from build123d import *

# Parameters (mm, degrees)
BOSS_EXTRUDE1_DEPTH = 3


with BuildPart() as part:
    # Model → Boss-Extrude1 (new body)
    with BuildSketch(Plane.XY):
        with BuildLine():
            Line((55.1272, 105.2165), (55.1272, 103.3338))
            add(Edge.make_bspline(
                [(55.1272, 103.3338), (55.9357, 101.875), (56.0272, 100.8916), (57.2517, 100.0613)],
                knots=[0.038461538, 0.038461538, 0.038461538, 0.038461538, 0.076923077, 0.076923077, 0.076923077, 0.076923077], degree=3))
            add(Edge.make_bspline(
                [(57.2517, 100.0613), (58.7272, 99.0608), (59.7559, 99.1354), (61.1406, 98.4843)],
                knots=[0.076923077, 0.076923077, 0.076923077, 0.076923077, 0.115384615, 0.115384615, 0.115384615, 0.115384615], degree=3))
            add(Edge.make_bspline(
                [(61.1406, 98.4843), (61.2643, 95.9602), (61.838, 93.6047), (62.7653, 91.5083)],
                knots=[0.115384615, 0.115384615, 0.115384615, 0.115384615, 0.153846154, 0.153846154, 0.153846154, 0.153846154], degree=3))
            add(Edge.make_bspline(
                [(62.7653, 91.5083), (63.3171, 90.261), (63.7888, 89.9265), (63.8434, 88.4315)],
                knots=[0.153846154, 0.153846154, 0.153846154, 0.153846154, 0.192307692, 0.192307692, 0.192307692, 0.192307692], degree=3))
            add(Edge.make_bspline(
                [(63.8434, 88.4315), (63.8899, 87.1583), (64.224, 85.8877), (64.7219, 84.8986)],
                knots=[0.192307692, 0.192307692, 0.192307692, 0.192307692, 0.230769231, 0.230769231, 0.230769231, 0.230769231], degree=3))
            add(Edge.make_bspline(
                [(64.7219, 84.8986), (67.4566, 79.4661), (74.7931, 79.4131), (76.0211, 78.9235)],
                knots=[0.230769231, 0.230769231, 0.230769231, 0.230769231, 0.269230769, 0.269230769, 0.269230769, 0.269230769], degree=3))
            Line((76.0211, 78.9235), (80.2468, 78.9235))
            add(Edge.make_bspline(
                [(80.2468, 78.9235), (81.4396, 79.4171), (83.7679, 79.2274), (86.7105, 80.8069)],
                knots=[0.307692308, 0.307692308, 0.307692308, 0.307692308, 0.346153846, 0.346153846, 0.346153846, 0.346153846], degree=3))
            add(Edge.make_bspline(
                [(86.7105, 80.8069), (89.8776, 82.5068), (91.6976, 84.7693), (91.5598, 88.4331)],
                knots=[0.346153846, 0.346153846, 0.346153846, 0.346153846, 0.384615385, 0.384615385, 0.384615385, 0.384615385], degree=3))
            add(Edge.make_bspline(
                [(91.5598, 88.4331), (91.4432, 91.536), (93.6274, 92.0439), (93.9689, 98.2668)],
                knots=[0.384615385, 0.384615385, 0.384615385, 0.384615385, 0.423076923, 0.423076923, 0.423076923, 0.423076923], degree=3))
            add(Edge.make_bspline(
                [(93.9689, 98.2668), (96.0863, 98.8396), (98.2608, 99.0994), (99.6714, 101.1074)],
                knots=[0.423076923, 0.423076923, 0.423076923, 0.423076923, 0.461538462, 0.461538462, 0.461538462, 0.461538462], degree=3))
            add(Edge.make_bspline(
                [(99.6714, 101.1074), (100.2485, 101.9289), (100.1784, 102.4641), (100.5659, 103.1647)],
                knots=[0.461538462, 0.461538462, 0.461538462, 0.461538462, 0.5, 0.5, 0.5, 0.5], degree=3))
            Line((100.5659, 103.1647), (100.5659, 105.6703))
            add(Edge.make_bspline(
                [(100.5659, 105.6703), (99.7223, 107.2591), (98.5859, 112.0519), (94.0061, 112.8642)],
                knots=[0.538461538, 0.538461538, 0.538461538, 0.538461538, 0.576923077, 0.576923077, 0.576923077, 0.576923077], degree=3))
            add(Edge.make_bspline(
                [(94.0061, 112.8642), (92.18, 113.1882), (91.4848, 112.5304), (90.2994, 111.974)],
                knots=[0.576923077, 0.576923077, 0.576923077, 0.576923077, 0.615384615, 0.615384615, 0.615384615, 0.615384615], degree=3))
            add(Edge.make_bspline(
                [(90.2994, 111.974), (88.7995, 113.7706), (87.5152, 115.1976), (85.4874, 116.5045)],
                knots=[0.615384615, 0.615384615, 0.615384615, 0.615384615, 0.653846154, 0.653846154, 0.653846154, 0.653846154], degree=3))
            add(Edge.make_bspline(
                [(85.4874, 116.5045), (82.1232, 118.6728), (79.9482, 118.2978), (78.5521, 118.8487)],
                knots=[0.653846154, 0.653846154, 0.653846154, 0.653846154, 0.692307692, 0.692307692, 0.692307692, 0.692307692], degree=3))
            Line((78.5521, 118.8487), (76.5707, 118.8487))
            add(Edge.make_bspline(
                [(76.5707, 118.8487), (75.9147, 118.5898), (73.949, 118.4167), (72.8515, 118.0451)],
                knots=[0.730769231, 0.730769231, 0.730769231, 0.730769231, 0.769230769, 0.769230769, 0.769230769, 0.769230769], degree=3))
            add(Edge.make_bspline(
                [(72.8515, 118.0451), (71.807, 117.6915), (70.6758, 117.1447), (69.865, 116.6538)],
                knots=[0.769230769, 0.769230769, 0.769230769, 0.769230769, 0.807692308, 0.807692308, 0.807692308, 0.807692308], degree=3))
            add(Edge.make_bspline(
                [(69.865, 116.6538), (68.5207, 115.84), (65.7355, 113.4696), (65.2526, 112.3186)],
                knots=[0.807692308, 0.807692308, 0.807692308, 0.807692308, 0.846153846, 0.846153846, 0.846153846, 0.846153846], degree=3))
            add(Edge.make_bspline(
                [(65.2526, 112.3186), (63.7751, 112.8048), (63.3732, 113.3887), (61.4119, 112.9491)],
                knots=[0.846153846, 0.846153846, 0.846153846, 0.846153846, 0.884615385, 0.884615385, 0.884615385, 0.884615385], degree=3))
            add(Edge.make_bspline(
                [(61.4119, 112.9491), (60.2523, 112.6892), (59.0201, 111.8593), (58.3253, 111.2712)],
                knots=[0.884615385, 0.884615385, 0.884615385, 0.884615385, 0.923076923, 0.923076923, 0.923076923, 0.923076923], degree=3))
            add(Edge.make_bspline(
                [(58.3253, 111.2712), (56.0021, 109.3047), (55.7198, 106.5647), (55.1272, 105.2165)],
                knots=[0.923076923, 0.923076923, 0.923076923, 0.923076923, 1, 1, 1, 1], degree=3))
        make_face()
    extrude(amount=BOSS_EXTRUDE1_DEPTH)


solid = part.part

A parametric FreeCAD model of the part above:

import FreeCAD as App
import Part
import Sketcher

V = App.Vector

doc = App.newDocument("Part")
body = doc.addObject("PartDesign::Body", "Body")

# Sketch on XY plane
sketch1 = body.newObject("Sketcher::SketchObject", "Sketch")
sketch1.AttachmentSupport = (doc.getObject("XY_Plane"), [""])
sketch1.MapMode = "FlatFace"
sketch1.addGeometry([
    Part.LineSegment(V(55.1272, 105.2165, 0), V(55.1272, 103.3338, 0)),  # 0
    Part.BSplineCurve([V(55.1272, 103.3338, 0), V(55.9357, 101.875, 0), V(56.0272, 100.8916, 0), V(57.2517, 100.0613, 0)], [4, 4], [0.038461538, 0.076923077], False, 3, [1, 1, 1, 1], False),  # 1
    Part.BSplineCurve([V(57.2517, 100.0613, 0), V(58.7272, 99.0608, 0), V(59.7559, 99.1354, 0), V(61.1406, 98.4843, 0)], [4, 4], [0.076923077, 0.115384615], False, 3, [1, 1, 1, 1], False),  # 2
    Part.BSplineCurve([V(61.1406, 98.4843, 0), V(61.2643, 95.9602, 0), V(61.838, 93.6047, 0), V(62.7653, 91.5083, 0)], [4, 4], [0.115384615, 0.153846154], False, 3, [1, 1, 1, 1], False),  # 3
    Part.BSplineCurve([V(62.7653, 91.5083, 0), V(63.3171, 90.261, 0), V(63.7888, 89.9265, 0), V(63.8434, 88.4315, 0)], [4, 4], [0.153846154, 0.192307692], False, 3, [1, 1, 1, 1], False),  # 4
    Part.BSplineCurve([V(63.8434, 88.4315, 0), V(63.8899, 87.1583, 0), V(64.224, 85.8877, 0), V(64.7219, 84.8986, 0)], [4, 4], [0.192307692, 0.230769231], False, 3, [1, 1, 1, 1], False),  # 5
    Part.BSplineCurve([V(64.7219, 84.8986, 0), V(67.4566, 79.4661, 0), V(74.7931, 79.4131, 0), V(76.0211, 78.9235, 0)], [4, 4], [0.230769231, 0.269230769], False, 3, [1, 1, 1, 1], False),  # 6
    Part.LineSegment(V(76.0211, 78.9235, 0), V(80.2468, 78.9235, 0)),  # 7
    Part.BSplineCurve([V(80.2468, 78.9235, 0), V(81.4396, 79.4171, 0), V(83.7679, 79.2274, 0), V(86.7105, 80.8069, 0)], [4, 4], [0.307692308, 0.346153846], False, 3, [1, 1, 1, 1], False),  # 8
    Part.BSplineCurve([V(86.7105, 80.8069, 0), V(89.8776, 82.5068, 0), V(91.6976, 84.7693, 0), V(91.5598, 88.4331, 0)], [4, 4], [0.346153846, 0.384615385], False, 3, [1, 1, 1, 1], False),  # 9
    Part.BSplineCurve([V(91.5598, 88.4331, 0), V(91.4432, 91.536, 0), V(93.6274, 92.0439, 0), V(93.9689, 98.2668, 0)], [4, 4], [0.384615385, 0.423076923], False, 3, [1, 1, 1, 1], False),  # 10
    Part.BSplineCurve([V(93.9689, 98.2668, 0), V(96.0863, 98.8396, 0), V(98.2608, 99.0994, 0), V(99.6714, 101.1074, 0)], [4, 4], [0.423076923, 0.461538462], False, 3, [1, 1, 1, 1], False),  # 11
    Part.BSplineCurve([V(99.6714, 101.1074, 0), V(100.2485, 101.9289, 0), V(100.1784, 102.4641, 0), V(100.5659, 103.1647, 0)], [4, 4], [0.461538462, 0.5], False, 3, [1, 1, 1, 1], False),  # 12
    Part.LineSegment(V(100.5659, 103.1647, 0), V(100.5659, 105.6703, 0)),  # 13
    Part.BSplineCurve([V(100.5659, 105.6703, 0), V(99.7223, 107.2591, 0), V(98.5859, 112.0519, 0), V(94.0061, 112.8642, 0)], [4, 4], [0.538461538, 0.576923077], False, 3, [1, 1, 1, 1], False),  # 14
    Part.BSplineCurve([V(94.0061, 112.8642, 0), V(92.18, 113.1882, 0), V(91.4848, 112.5304, 0), V(90.2994, 111.974, 0)], [4, 4], [0.576923077, 0.615384615], False, 3, [1, 1, 1, 1], False),  # 15
    Part.BSplineCurve([V(90.2994, 111.974, 0), V(88.7995, 113.7706, 0), V(87.5152, 115.1976, 0), V(85.4874, 116.5045, 0)], [4, 4], [0.615384615, 0.653846154], False, 3, [1, 1, 1, 1], False),  # 16
    Part.BSplineCurve([V(85.4874, 116.5045, 0), V(82.1232, 118.6728, 0), V(79.9482, 118.2978, 0), V(78.5521, 118.8487, 0)], [4, 4], [0.653846154, 0.692307692], False, 3, [1, 1, 1, 1], False),  # 17
    Part.LineSegment(V(78.5521, 118.8487, 0), V(76.5707, 118.8487, 0)),  # 18
    Part.BSplineCurve([V(76.5707, 118.8487, 0), V(75.9147, 118.5898, 0), V(73.949, 118.4167, 0), V(72.8515, 118.0451, 0)], [4, 4], [0.730769231, 0.769230769], False, 3, [1, 1, 1, 1], False),  # 19
    Part.BSplineCurve([V(72.8515, 118.0451, 0), V(71.807, 117.6915, 0), V(70.6758, 117.1447, 0), V(69.865, 116.6538, 0)], [4, 4], [0.769230769, 0.807692308], False, 3, [1, 1, 1, 1], False),  # 20
    Part.BSplineCurve([V(69.865, 116.6538, 0), V(68.5207, 115.84, 0), V(65.7355, 113.4696, 0), V(65.2526, 112.3186, 0)], [4, 4], [0.807692308, 0.846153846], False, 3, [1, 1, 1, 1], False),  # 21
    Part.BSplineCurve([V(65.2526, 112.3186, 0), V(63.7751, 112.8048, 0), V(63.3732, 113.3887, 0), V(61.4119, 112.9491, 0)], [4, 4], [0.846153846, 0.884615385], False, 3, [1, 1, 1, 1], False),  # 22
    Part.BSplineCurve([V(61.4119, 112.9491, 0), V(60.2523, 112.6892, 0), V(59.0201, 111.8593, 0), V(58.3253, 111.2712, 0)], [4, 4], [0.884615385, 0.923076923], False, 3, [1, 1, 1, 1], False),  # 23
    Part.BSplineCurve([V(58.3253, 111.2712, 0), V(56.0021, 109.3047, 0), V(55.7198, 106.5647, 0), V(55.1272, 105.2165, 0)], [4, 4], [0.923076923, 1], False, 3, [1, 1, 1, 1], False),  # 24
], False)
sketch1.addConstraint([
    Sketcher.Constraint("Block", 1),
    Sketcher.Constraint("Block", 2),
    Sketcher.Constraint("Block", 3),
    Sketcher.Constraint("Block", 4),
    Sketcher.Constraint("Block", 5),
    Sketcher.Constraint("Block", 6),
    Sketcher.Constraint("Block", 8),
    Sketcher.Constraint("Block", 9),
    Sketcher.Constraint("Block", 10),
    Sketcher.Constraint("Block", 11),
    Sketcher.Constraint("Block", 12),
    Sketcher.Constraint("Block", 14),
    Sketcher.Constraint("Block", 15),
    Sketcher.Constraint("Block", 16),
    Sketcher.Constraint("Block", 17),
    Sketcher.Constraint("Block", 19),
    Sketcher.Constraint("Block", 20),
    Sketcher.Constraint("Block", 21),
    Sketcher.Constraint("Block", 22),
    Sketcher.Constraint("Block", 23),
    Sketcher.Constraint("Block", 24),
    Sketcher.Constraint("Coincident", 0, 2, 1, 1),
    Sketcher.Constraint("Coincident", 6, 2, 7, 1),
    Sketcher.Constraint("Coincident", 7, 2, 8, 1),
    Sketcher.Constraint("Coincident", 12, 2, 13, 1),
    Sketcher.Constraint("Coincident", 13, 2, 14, 1),
    Sketcher.Constraint("Coincident", 17, 2, 18, 1),
    Sketcher.Constraint("Coincident", 18, 2, 19, 1),
    Sketcher.Constraint("Coincident", 24, 2, 0, 1),
])
pad1 = body.newObject("PartDesign::Pad", "Pad")
pad1.Profile = sketch1
pad1.Length = 3

doc.recompute()
